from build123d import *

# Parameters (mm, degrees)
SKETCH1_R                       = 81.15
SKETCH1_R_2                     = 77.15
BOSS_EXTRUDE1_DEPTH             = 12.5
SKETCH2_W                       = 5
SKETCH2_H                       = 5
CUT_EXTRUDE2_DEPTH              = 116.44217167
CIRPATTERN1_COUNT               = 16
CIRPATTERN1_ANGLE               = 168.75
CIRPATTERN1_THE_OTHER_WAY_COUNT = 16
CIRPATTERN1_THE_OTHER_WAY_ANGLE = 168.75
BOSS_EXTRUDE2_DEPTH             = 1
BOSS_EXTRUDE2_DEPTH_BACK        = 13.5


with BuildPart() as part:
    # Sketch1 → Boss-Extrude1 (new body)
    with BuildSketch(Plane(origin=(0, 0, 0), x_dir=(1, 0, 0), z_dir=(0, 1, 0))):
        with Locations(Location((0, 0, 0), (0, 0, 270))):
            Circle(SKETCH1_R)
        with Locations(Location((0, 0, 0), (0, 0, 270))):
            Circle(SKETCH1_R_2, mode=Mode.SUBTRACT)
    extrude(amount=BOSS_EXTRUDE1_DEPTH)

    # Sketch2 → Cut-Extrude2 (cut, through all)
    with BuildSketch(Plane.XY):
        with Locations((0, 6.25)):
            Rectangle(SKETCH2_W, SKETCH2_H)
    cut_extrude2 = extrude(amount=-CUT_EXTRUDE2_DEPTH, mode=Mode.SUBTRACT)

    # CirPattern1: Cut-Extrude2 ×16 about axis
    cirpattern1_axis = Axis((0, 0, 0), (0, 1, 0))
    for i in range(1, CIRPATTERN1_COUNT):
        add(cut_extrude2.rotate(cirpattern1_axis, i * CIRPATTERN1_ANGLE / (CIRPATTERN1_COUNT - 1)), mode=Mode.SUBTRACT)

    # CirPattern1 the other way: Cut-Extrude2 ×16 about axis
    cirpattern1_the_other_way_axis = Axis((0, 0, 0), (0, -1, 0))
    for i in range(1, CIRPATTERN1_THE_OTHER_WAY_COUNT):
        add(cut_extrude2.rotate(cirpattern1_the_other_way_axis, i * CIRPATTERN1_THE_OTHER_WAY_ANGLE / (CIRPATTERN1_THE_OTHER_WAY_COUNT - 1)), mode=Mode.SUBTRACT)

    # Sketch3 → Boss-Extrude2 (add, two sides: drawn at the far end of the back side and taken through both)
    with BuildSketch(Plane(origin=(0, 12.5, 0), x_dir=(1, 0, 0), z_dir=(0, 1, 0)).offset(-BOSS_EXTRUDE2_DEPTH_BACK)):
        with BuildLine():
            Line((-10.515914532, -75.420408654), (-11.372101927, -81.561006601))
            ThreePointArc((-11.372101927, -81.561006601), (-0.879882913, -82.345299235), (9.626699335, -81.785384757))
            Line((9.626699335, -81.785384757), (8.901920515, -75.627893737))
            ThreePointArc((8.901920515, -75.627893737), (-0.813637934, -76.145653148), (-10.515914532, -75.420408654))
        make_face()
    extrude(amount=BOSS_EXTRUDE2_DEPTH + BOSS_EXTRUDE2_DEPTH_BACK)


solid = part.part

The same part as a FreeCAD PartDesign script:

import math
import FreeCAD as App
import Part
import Sketcher
from FreeCAD import Vector

doc = App.newDocument("Part")
body = doc.addObject("PartDesign::Body", "Body")

sketch1 = body.newObject("Sketcher::SketchObject", "Sketch")
sketch1.AttachmentSupport = (doc.getObject("XZ_Plane"), [""])
sketch1.MapMode = "FlatFace"
sketch1.addGeometry([
    Part.Circle(Vector(0, 0, 0), Vector(0, 0, 1), 81.15),
    Part.Circle(Vector(0, 0, 0), Vector(0, 0, 1), 77.15),
], False)
sketch1.addConstraint([
    Sketcher.Constraint("Coincident", 0, 3, -1, 1),
    Sketcher.Constraint("Coincident", 1, 3, -1, 1),
    Sketcher.Constraint("Diameter", 0, 162.3),
    Sketcher.Constraint("Diameter", 1, 154.3),
])
pad1 = body.newObject("PartDesign::Pad", "Pad")
pad1.Profile = sketch1
pad1.Length = 12.5
pad1.Reversed = True

sketch2 = body.newObject("Sketcher::SketchObject", "Sketch001")
sketch2.AttachmentSupport = (doc.getObject("XY_Plane"), [""])
sketch2.MapMode = "FlatFace"
sketch2.addGeometry([
    Part.LineSegment(Vector(-2.5, 8.75, 0), Vector(-2.5, 3.75, 0)),
    Part.LineSegment(Vector(-2.5, 3.75, 0), Vector(2.5, 3.75, 0)),
    Part.LineSegment(Vector(2.5, 3.75, 0), Vector(2.5, 8.75, 0)),
    Part.LineSegment(Vector(2.5, 8.75, 0), Vector(-2.5, 8.75, 0)),
], False)
sketch2.addConstraint([
    Sketcher.Constraint("Coincident", 0, 2, 1, 1),
    Sketcher.Constraint("Coincident", 1, 2, 2, 1),
    Sketcher.Constraint("Coincident", 2, 2, 3, 1),
    Sketcher.Constraint("Coincident", 3, 2, 0, 1),
    Sketcher.Constraint("Vertical", 0),
    Sketcher.Constraint("Horizontal", 1),
    Sketcher.Constraint("Vertical", 2),
    Sketcher.Constraint("Horizontal", 3),
    Sketcher.Constraint("Equal", 3, 0),
    Sketcher.Constraint("DistanceX", 1, 1, 1, 2, 5.0),
    Sketcher.Constraint("DistanceX", 0, 2, -1, 1, 2.5),
    Sketcher.Constraint("DistanceY", -1, 1, 0, 2, 3.75),
])
pocket1 = body.newObject("PartDesign::Pocket", "Pocket")
pocket1.Profile = sketch2
pocket1.Type = "ThroughAll"
doc.recompute()

polarpattern = body.newObject("PartDesign::PolarPattern", "PolarPattern")
polarpattern.Originals = [pocket1]
polarpattern.Axis = (doc.getObject("Y_Axis"), [""])
polarpattern.Angle = 168.75
polarpattern.Occurrences = 16
body.Tip = polarpattern
doc.recompute()

polarpattern2 = body.newObject("PartDesign::PolarPattern", "PolarPattern001")
polarpattern2.Originals = [pocket1]
polarpattern2.Axis = (doc.getObject("Y_Axis"), [""])
polarpattern2.Angle = 168.75
polarpattern2.Occurrences = 16
polarpattern2.Reversed = True
body.Tip = polarpattern2

sketch3 = body.newObject("Sketcher::SketchObject", "Sketch002")
sketch3.AttachmentSupport = (doc.getObject("XZ_Plane"), [""])
sketch3.MapMode = "FlatFace"
sketch3.AttachmentOffset = App.Placement(Vector(0, 0, -12.5), App.Rotation())
sketch3.addGeometry([
    Part.LineSegment(Vector(-10.515915, 75.420409, 0), Vector(-11.372102, 81.561007, 0)),
    Part.ArcOfCircle(Part.Circle(Vector(0, 0, 0), Vector(0, 0, 1), 82.35), math.radians(83.286785), math.radians(97.937612)),
    Part.LineSegment(Vector(9.626699, 81.785385, 0), Vector(8.901921, 75.627894, 0)),
    Part.ArcOfCircle(Part.Circle(Vector(0, 0, 0), Vector(0, 0, 1), 76.15), math.radians(83.286785), math.radians(97.937612)),
], False)
sketch3.addConstraint([
    Sketcher.Constraint("Coincident", 0, 2, 1, 2),
    Sketcher.Constraint("Coincident", 1, 1, 2, 1),
    Sketcher.Constraint("Coincident", 2, 2, 3, 1),
    Sketcher.Constraint("Coincident", 3, 2, 0, 1),
    Sketcher.Constraint("Coincident", 1, 3, -1, 1),
    Sketcher.Constraint("Coincident", 3, 3, -1, 1),
    Sketcher.Constraint("Radius", 1, 82.35),
    Sketcher.Constraint("Radius", 3, 76.15),
    Sketcher.Constraint("DistanceX", 0, 2, -1, 1, 11.372102),
    Sketcher.Constraint("DistanceX", -1, 1, 1, 1, 9.626699),
    Sketcher.Constraint("DistanceX", -1, 1, 2, 2, 8.901921),
    Sketcher.Constraint("DistanceY", -1, 1, 3, 2, 75.420409),
])
pad2 = body.newObject("PartDesign::Pad", "Pad001")
pad2.Profile = sketch3
pad2.Type = "TwoLengths"
pad2.Length = 1
pad2.Length2 = 13.5
pad2.Reversed = True

doc.recompute()
